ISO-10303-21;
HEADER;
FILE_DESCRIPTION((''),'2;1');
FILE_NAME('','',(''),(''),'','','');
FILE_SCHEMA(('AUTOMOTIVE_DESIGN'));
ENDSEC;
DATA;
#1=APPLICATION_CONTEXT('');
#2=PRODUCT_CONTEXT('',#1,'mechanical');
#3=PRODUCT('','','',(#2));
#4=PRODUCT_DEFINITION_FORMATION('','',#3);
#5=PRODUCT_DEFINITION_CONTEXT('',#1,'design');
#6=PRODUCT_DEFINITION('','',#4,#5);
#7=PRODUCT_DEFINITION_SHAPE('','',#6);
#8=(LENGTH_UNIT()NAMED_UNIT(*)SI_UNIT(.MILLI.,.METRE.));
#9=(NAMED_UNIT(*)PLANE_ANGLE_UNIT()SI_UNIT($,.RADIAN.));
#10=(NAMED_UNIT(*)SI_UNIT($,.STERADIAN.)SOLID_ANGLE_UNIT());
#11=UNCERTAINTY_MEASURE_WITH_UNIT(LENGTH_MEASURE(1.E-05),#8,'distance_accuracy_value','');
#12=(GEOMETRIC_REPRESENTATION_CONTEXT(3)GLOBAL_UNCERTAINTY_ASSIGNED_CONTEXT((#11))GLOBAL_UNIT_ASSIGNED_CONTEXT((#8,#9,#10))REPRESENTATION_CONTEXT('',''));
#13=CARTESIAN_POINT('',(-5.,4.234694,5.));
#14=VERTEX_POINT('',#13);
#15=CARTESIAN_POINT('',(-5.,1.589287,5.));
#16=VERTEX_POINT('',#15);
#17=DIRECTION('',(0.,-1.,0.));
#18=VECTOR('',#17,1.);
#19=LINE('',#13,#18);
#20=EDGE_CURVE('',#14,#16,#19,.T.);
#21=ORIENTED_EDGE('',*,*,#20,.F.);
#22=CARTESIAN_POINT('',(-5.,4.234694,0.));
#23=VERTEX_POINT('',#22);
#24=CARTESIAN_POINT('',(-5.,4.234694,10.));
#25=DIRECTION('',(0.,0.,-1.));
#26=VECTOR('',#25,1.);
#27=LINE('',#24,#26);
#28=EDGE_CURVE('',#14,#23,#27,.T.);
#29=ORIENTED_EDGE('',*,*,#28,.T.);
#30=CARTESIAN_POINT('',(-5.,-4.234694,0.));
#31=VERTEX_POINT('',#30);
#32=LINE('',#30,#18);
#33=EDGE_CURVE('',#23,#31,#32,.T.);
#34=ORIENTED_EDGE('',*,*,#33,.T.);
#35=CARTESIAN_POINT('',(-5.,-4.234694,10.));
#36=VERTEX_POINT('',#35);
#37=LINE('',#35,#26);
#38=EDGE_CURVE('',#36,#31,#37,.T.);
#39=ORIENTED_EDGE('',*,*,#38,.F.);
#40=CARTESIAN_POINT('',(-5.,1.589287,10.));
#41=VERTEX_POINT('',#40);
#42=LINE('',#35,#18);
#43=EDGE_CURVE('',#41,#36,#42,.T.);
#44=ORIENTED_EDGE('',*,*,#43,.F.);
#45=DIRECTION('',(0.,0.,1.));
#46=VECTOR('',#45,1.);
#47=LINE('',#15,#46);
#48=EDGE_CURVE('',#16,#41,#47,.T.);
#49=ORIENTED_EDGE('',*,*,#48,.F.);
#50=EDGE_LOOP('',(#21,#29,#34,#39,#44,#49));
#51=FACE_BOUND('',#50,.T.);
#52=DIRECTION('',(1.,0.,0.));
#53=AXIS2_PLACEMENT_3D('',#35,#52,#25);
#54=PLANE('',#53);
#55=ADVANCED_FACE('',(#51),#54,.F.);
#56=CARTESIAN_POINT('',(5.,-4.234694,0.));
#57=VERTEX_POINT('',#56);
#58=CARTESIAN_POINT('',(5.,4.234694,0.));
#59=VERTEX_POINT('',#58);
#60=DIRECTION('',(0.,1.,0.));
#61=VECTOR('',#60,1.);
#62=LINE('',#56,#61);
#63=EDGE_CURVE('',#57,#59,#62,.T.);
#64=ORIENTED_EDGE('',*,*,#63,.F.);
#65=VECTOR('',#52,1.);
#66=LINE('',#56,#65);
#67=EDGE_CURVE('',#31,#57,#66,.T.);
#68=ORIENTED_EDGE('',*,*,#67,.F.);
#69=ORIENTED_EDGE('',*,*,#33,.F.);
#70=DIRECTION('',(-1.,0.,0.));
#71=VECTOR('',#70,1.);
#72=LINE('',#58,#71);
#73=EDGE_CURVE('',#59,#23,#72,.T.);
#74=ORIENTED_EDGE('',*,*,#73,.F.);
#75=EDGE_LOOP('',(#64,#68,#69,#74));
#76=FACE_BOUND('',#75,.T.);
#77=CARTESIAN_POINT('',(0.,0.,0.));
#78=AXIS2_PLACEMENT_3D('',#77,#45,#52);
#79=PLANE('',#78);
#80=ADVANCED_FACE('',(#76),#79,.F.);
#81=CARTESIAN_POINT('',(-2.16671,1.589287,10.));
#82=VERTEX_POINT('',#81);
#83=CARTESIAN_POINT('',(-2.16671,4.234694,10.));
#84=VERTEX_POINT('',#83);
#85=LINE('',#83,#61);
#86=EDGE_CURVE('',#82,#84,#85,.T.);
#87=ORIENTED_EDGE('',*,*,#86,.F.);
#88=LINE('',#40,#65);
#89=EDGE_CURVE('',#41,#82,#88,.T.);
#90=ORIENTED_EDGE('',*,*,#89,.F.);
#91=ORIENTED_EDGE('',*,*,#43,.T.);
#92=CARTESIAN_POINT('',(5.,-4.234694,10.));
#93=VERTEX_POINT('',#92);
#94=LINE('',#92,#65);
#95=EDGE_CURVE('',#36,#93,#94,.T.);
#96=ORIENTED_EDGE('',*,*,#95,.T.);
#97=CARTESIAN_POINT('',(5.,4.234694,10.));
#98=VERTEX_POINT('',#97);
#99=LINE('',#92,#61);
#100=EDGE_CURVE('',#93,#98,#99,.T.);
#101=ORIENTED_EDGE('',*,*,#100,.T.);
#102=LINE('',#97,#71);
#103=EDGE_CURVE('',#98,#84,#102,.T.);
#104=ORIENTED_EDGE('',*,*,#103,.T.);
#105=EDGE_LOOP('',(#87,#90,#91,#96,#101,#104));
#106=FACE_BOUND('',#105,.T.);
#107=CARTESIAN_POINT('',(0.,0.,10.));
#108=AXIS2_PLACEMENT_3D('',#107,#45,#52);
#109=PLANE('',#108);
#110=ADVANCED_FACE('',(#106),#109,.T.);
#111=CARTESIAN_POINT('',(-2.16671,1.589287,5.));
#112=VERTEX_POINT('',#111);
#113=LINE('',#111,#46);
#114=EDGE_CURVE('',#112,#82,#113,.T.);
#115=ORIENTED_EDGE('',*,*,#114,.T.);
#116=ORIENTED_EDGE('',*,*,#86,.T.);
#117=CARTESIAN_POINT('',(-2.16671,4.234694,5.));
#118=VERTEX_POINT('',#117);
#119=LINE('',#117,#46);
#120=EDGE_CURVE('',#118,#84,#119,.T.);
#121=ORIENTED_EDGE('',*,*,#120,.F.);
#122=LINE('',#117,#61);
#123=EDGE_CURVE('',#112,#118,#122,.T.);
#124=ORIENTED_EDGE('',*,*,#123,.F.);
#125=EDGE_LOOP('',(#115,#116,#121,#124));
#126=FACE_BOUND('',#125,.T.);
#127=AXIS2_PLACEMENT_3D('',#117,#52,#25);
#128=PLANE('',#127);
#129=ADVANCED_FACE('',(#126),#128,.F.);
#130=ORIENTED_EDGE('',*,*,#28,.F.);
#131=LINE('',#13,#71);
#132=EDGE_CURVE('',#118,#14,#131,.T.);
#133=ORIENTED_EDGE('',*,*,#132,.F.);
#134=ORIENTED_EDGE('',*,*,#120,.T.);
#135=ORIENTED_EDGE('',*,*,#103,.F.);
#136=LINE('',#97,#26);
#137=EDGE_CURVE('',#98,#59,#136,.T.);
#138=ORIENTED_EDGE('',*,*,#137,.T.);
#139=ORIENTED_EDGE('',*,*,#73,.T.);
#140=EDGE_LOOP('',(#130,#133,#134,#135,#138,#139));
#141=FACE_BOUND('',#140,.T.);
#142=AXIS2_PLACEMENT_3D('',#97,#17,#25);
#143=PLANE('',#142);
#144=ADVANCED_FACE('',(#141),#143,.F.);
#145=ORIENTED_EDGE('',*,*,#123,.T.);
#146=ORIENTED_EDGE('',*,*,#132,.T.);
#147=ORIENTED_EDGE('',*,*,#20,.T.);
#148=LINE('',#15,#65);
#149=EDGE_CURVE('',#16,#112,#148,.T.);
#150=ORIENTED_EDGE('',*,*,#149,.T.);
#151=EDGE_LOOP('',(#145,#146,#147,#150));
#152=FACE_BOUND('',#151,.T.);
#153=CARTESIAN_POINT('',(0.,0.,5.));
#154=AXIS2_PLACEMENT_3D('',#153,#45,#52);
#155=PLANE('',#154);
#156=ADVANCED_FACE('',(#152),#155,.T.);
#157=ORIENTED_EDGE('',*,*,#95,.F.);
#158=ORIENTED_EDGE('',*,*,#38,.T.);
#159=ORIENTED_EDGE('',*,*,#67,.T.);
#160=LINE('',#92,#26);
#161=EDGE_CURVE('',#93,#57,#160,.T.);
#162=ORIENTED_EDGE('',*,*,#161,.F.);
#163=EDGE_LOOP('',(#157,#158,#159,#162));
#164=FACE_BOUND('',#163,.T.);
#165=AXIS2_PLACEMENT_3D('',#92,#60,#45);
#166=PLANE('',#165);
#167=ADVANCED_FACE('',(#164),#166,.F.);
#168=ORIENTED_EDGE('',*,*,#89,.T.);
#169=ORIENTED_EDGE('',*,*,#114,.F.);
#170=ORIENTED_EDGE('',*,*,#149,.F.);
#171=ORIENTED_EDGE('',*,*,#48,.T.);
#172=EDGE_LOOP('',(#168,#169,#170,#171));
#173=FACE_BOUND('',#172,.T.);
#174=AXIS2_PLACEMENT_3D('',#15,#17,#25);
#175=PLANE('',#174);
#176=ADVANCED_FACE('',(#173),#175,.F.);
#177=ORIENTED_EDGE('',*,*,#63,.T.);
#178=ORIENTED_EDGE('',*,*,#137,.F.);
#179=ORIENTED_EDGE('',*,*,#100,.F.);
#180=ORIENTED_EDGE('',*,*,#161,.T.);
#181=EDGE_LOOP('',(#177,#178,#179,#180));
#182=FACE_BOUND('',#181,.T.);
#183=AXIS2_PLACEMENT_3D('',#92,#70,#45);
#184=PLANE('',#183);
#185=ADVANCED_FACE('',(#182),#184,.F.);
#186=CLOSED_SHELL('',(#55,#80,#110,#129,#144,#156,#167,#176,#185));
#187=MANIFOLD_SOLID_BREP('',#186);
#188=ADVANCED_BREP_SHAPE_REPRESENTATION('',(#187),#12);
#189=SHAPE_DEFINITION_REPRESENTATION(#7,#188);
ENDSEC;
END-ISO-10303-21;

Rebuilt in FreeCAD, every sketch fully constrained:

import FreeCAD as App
import Part
import Sketcher
from FreeCAD import Vector
Q = App.Units.Quantity


def add_polygon(sketch, points):
    """Adds a closed chain of lines whose ends are joined by coincident constraints."""
    first, n = sketch.GeometryCount, len(points)
    for a, b in zip(points, points[1:] + points[:1]):
        sketch.addGeometry(Part.LineSegment(App.Vector(*a, 0), App.Vector(*b, 0)), False)
    for i in range(n):
        sketch.addConstraint(Sketcher.Constraint("Coincident", first + i, 2, first + (i + 1) % n, 1))

doc = App.newDocument("Part")
body = doc.addObject("PartDesign::Body", "Body")

# Sketch on XY plane
sketch1 = body.newObject("Sketcher::SketchObject", "Sketch")
sketch1.AttachmentSupport = (doc.getObject("XY_Plane"), [""])
sketch1.MapMode = "FlatFace"
add_polygon(sketch1, [(-5, 4.234694), (-5, -4.234694), (5, -4.234694), (5, 4.234694)])  # lines 0-3
sketch1.addConstraint(Sketcher.Constraint("Vertical", 0))
sketch1.addConstraint(Sketcher.Constraint("Horizontal", 1))
sketch1.addConstraint(Sketcher.Constraint("Vertical", 2))
sketch1.addConstraint(Sketcher.Constraint("Horizontal", 3))
sketch1.addConstraint(Sketcher.Constraint("Symmetric", 0, 2, 2, 2, -1, 1))
sketch1.addConstraint(Sketcher.Constraint("DistanceX", 1, 1, 1, 2, Q("10 mm")))
sketch1.addConstraint(Sketcher.Constraint("DistanceY", 0, 2, 0, 1, Q("8.469388 mm")))
pad1 = body.newObject("PartDesign::Pad", "Pad")
pad1.Profile = sketch1
pad1.Length = 10

# Sketch on XY plane
sketch2 = body.newObject("Sketcher::SketchObject", "Sketch001")
sketch2.AttachmentSupport = (doc.getObject("XY_Plane"), [""])
sketch2.MapMode = "FlatFace"
sketch2.AttachmentOffset = App.Placement(Vector(0, 0, 10), App.Rotation())
add_polygon(sketch2, [(-5, 4.234694), (-5, 1.589287), (-2.16671, 1.589287), (-2.16671, 4.234694)])  # lines 0-3
sketch2.addConstraint(Sketcher.Constraint("Vertical", 0))
sketch2.addConstraint(Sketcher.Constraint("Horizontal", 1))
sketch2.addConstraint(Sketcher.Constraint("Vertical", 2))
sketch2.addConstraint(Sketcher.Constraint("Horizontal", 3))
sketch2.addConstraint(Sketcher.Constraint("DistanceX", 0, 2, -1, 1, Q("5 mm")))
sketch2.addConstraint(Sketcher.Constraint("DistanceX", 1, 1, 1, 2, Q("2.83329 mm")))
sketch2.addConstraint(Sketcher.Constraint("DistanceY", 0, 2, 0, 1, Q("2.645407 mm")))
sketch2.addConstraint(Sketcher.Constraint("DistanceY", -1, 1, 0, 2, Q("1.589287 mm")))
pocket1 = body.newObject("PartDesign::Pocket", "Pocket")
pocket1.Profile = sketch2
pocket1.Length = 5

doc.recompute()
